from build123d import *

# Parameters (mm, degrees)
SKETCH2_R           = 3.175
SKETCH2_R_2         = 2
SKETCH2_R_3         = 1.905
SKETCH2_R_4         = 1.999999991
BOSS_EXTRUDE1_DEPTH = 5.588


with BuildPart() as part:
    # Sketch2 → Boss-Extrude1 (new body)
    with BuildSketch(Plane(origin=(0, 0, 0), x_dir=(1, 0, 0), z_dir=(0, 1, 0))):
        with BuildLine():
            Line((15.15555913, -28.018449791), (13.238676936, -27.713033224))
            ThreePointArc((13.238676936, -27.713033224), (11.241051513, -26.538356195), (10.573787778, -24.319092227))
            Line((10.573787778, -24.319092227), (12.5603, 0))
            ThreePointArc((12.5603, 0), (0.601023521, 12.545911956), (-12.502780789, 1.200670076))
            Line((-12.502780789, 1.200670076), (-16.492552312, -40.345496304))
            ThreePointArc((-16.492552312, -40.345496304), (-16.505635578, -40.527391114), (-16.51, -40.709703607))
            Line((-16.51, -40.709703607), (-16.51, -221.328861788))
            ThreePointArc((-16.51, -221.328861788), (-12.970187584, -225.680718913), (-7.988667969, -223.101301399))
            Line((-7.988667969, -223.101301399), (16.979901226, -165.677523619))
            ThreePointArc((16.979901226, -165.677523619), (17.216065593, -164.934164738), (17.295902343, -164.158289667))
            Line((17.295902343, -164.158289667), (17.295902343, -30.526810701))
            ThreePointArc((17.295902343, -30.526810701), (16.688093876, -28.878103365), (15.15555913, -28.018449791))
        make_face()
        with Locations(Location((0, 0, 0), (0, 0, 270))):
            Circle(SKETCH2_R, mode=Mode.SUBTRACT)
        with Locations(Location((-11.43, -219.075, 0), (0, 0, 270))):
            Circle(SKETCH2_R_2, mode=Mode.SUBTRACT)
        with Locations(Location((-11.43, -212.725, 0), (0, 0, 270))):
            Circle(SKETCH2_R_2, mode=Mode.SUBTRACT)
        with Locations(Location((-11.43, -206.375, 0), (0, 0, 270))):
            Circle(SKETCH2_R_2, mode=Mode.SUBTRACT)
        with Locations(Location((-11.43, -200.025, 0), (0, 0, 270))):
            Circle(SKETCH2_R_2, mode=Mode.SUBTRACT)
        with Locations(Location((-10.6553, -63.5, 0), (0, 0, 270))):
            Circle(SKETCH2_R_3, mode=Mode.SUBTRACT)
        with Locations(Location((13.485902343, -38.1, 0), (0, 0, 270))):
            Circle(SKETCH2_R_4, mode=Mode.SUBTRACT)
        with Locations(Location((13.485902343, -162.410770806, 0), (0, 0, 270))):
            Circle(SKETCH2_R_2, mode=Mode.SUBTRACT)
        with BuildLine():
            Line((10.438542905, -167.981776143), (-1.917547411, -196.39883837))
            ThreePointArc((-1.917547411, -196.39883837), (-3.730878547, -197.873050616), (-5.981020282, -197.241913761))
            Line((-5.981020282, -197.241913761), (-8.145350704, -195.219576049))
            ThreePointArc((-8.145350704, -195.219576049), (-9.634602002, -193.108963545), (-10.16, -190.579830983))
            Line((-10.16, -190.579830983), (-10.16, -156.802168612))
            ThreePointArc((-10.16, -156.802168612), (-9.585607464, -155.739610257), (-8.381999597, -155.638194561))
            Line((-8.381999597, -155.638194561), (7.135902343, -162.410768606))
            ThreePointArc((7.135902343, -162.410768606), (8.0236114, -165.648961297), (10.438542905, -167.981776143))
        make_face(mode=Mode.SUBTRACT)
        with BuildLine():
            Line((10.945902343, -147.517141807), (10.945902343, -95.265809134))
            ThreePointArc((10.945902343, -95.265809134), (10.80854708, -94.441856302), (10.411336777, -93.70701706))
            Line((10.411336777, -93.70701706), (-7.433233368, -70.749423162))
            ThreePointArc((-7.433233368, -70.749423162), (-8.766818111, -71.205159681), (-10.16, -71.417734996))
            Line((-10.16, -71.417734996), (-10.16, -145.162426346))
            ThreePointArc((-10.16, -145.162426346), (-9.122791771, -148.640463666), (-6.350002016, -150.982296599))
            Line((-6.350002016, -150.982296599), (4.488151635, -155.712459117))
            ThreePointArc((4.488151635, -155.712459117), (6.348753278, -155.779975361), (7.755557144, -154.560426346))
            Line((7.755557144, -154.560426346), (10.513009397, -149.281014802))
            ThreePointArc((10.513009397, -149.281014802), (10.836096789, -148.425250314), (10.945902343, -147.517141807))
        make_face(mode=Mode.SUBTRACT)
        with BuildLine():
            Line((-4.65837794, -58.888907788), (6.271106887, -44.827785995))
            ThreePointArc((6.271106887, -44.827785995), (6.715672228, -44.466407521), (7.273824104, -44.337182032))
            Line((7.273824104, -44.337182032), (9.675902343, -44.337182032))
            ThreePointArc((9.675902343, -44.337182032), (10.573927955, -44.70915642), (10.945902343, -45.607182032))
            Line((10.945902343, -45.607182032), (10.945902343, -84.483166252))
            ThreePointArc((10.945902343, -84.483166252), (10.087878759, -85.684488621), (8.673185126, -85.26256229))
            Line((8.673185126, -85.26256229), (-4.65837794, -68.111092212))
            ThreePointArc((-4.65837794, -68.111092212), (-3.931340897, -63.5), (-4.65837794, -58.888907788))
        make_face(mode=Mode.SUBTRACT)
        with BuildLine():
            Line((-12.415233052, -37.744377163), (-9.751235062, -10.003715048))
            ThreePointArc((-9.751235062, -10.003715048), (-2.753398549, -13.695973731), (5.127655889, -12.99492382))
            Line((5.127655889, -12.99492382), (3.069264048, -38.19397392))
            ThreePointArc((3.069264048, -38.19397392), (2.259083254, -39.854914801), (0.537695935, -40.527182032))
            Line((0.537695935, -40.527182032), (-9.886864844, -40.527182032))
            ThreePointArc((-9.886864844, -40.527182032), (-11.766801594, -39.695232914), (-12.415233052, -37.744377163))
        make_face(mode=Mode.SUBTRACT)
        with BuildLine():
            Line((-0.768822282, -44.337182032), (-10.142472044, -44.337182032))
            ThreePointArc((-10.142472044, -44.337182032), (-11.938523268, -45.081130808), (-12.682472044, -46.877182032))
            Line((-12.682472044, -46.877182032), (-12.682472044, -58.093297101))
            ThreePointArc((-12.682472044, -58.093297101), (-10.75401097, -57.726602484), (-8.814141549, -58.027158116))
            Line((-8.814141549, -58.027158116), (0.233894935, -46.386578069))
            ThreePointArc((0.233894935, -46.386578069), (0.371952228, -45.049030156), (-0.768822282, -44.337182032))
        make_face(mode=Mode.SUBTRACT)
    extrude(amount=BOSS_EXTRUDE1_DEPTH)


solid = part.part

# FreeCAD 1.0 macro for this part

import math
import FreeCAD as App
import Part
import Sketcher
from FreeCAD import Vector
Q = App.Units.Quantity

doc = App.newDocument("Part")
params = doc.addObject("Spreadsheet::Sheet", "Params")
for row, (alias, value) in enumerate([
    ("sketch1_radius", "0.1 in"),
    ("sketch1_radius2", "0.1 in"),
    ("sketch1_radius3", "0.1 in"),
    ("sketch1_radius4", "0.1 in"),
    ("sketch1_radius5", "0.1 in"),
    ("pad1_length", "0.22 in"),
], start=1):
    params.set(f"A{row}", alias)
    params.set(f"B{row}", "=" + value)
    params.setAlias(f"B{row}", alias)

body = doc.addObject("PartDesign::Body", "Body")

# Sketch on XZ plane
sketch1 = body.newObject("Sketcher::SketchObject", "Sketch")
sketch1.AttachmentSupport = (doc.getObject("XZ_Plane"), [""])
sketch1.MapMode = "FlatFace"
sketch1.addGeometry([
    Part.LineSegment(Vector(15.155559, 28.01845, 0), Vector(13.238677, 27.713033, 0)),  # 0
    Part.ArcOfCircle(Part.Circle(Vector(13.738248, 24.577582, 0), Vector(0, 0, 1), 3.175), math.radians(99.052835), math.radians(184.669855)),  # 1
    Part.LineSegment(Vector(10.573788, 24.319092, 0), Vector(12.5603, 0, 0)),  # 2
    Part.ArcOfCircle(Part.Circle(Vector(0, 0, 0), Vector(0, 0, 1), 12.5603), math.radians(-174.514579), math.radians(0)),  # 3
    Part.LineSegment(Vector(-12.502781, -1.20067, 0), Vector(-16.492552, 40.345496, 0)),  # 4
    Part.ArcOfCircle(Part.Circle(Vector(-12.7, 40.709704, 0), Vector(0, 0, 1), 3.81), math.radians(-180), math.radians(-174.514579)),  # 5
    Part.LineSegment(Vector(-16.51, 40.709704, 0), Vector(-16.51, 221.328862, 0)),  # 6
    Part.ArcOfCircle(Part.Circle(Vector(-12.065, 221.328862, 0), Vector(0, 0, 1), 4.445), math.radians(23.5), math.radians(180)),  # 7
    Part.LineSegment(Vector(-7.988668, 223.101301, 0), Vector(16.979901, 165.677524, 0)),  # 8
    Part.ArcOfCircle(Part.Circle(Vector(13.485902, 164.15829, 0), Vector(0, 0, 1), 3.81), math.radians(0), math.radians(23.5)),  # 9
    Part.LineSegment(Vector(17.295902, 164.15829, 0), Vector(17.295902, 30.526811, 0)),  # 10
    Part.ArcOfCircle(Part.Circle(Vector(14.755902, 30.526811, 0), Vector(0, 0, 1), 2.54), math.radians(-80.947165), math.radians(0)),  # 11
    Part.Circle(Vector(-11.43, 219.075, 0), Vector(0, 0, 1), 2),  # 12
    Part.Circle(Vector(-11.43, 212.725, 0), Vector(0, 0, 1), 2),  # 13
    Part.Circle(Vector(-11.43, 206.375, 0), Vector(0, 0, 1), 2),  # 14
    Part.Circle(Vector(-11.43, 200.025, 0), Vector(0, 0, 1), 2),  # 15
    Part.ArcOfCircle(Part.Circle(Vector(13.485902, 162.410771, 0), Vector(0, 0, 1), 6.35), math.radians(118.678814), math.radians(180.00002)),  # 16
    Part.LineSegment(Vector(10.438543, 167.981776, 0), Vector(-1.917547, 196.398838, 0)),  # 17
    Part.ArcOfCircle(Part.Circle(Vector(-4.24688, 195.386016, 0), Vector(0, 0, 1), 2.54), math.radians(23.5), math.radians(133.057533)),  # 18
    Part.LineSegment(Vector(-5.98102, 197.241914, 0), Vector(-8.145351, 195.219576, 0)),  # 19
    Part.ArcOfCircle(Part.Circle(Vector(-3.81, 190.579831, 0), Vector(0, 0, 1), 6.35), math.radians(133.057533), math.radians(180)),  # 20
    Part.LineSegment(Vector(-10.16, 190.579831, 0), Vector(-10.16, 156.802169, 0)),  # 21
    Part.ArcOfCircle(Part.Circle(Vector(-8.89, 156.802169, 0), Vector(0, 0, 1), 1.27), math.radians(180), math.radians(293.578198)),  # 22
    Part.LineSegment(Vector(-8.382, 155.638195, 0), Vector(7.135902, 162.410769, 0)),  # 23
    Part.LineSegment(Vector(10.945902, 95.265809, 0), Vector(10.945902, 147.517142, 0)),  # 24
    Part.ArcOfCircle(Part.Circle(Vector(7.135902, 147.517142, 0), Vector(0, 0, 1), 3.81), math.radians(0), math.radians(27.578198)),  # 25
    Part.LineSegment(Vector(10.513009, 149.281015, 0), Vector(7.755557, 154.560426, 0)),  # 26
    Part.ArcOfCircle(Part.Circle(Vector(5.504152, 153.384511, 0), Vector(0, 0, 1), 2.54), math.radians(27.578198), math.radians(113.578198)),  # 27
    Part.LineSegment(Vector(4.488152, 155.712459, 0), Vector(-6.350002, 150.982297, 0)),  # 28
    Part.ArcOfCircle(Part.Circle(Vector(-3.81, 145.162426, 0), Vector(0, 0, 1), 6.35), math.radians(113.578198), math.radians(180)),  # 29
    Part.LineSegment(Vector(-10.16, 145.162426, 0), Vector(-10.16, 71.417735, 0)),  # 30
    Part.ArcOfCircle(Part.Circle(Vector(-10.6553, 63.5, 0), Vector(0, 0, 1), 7.933212), math.radians(66.036846), math.radians(86.420483)),  # 31
    Part.LineSegment(Vector(-7.433233, 70.749423, 0), Vector(10.411337, 93.707017, 0)),  # 32
    Part.ArcOfCircle(Part.Circle(Vector(8.405902, 95.265809, 0), Vector(0, 0, 1), 2.54), math.radians(-37.857351), math.radians(0)),  # 33
    Part.Circle(Vector(13.485902, 162.410771, 0), Vector(0, 0, 1), 2),  # 34
    Part.Circle(Vector(-10.6553, 63.5, 0), Vector(0, 0, 1), 1.905),  # 35
    Part.LineSegment(Vector(-10.142472, 44.337182, 0), Vector(-0.768822, 44.337182, 0)),  # 36
    Part.ArcOfCircle(Part.Circle(Vector(-0.768822, 45.607182, 0), Vector(0, 0, 1), 1.27), math.radians(-90), math.radians(37.857351)),  # 37
    Part.LineSegment(Vector(0.233895, 46.386578, 0), Vector(-8.814142, 58.027158, 0)),  # 38
    Part.ArcOfCircle(Part.Circle(Vector(-10.6553, 63.5, 0), Vector(0, 0, 1), 5.774241), math.radians(-110.552872), math.radians(-71.406172)),  # 39
    Part.LineSegment(Vector(-12.682472, 58.093297, 0), Vector(-12.682472, 46.877182, 0)),  # 40
    Part.ArcOfCircle(Part.Circle(Vector(-10.142472, 46.877182, 0), Vector(0, 0, 1), 2.54), math.radians(-180), math.radians(-90)),  # 41
    Part.ArcOfCircle(Part.Circle(Vector(-9.886865, 37.987182, 0), Vector(0, 0, 1), 2.54), math.radians(90), math.radians(185.485421)),  # 42
    Part.LineSegment(Vector(-12.415233, 37.744377, 0), Vector(-9.751235, 10.003715, 0)),  # 43
    Part.ArcOfCircle(Part.Circle(Vector(0, 0, 0), Vector(0, 0, 1), 13.97), math.radians(68.466346), math.radians(134.267766)),  # 44
    Part.LineSegment(Vector(5.127656, 12.994924, 0), Vector(3.069264, 38.193974, 0)),  # 45
    Part.ArcOfCircle(Part.Circle(Vector(0.537696, 37.987182, 0), Vector(0, 0, 1), 2.54), math.radians(4.669855), math.radians(90)),  # 46
    Part.LineSegment(Vector(0.537696, 40.527182, 0), Vector(-9.886865, 40.527182, 0)),  # 47
    Part.Circle(Vector(0, 0, 0), Vector(0, 0, 1), 3.175),  # 48
    Part.ArcOfCircle(Part.Circle(Vector(-18.917341, 63.5, 0), Vector(0, 0, 1), 14.986), math.radians(-17.920275), math.radians(17.920275)),  # 49
    Part.LineSegment(Vector(-4.658378, 58.888908, 0), Vector(6.271107, 44.827786, 0)),  # 50
    Part.ArcOfCircle(Part.Circle(Vector(7.273824, 45.607182, 0), Vector(0, 0, 1), 1.27), math.radians(-142.142649), math.radians(-90)),  # 51
    Part.LineSegment(Vector(7.273824, 44.337182, 0), Vector(9.675902, 44.337182, 0)),  # 52
    Part.ArcOfCircle(Part.Circle(Vector(9.675902, 45.607182, 0), Vector(0, 0, 1), 1.27), math.radians(-90), math.radians(0)),  # 53
    Part.LineSegment(Vector(10.945902, 45.607182, 0), Vector(10.945902, 84.483166, 0)),  # 54
    Part.ArcOfCircle(Part.Circle(Vector(9.675902, 84.483166, 0), Vector(0, 0, 1), 1.27), math.radians(0), math.radians(142.142649)),  # 55
    Part.LineSegment(Vector(8.673185, 85.262562, 0), Vector(-4.658378, 68.111092, 0)),  # 56
    Part.Circle(Vector(13.485902, 38.1, 0), Vector(0, 0, 1), 2),  # 57
], False)
sketch1.addConstraint([
    Sketcher.Constraint("Coincident", 0, 2, 1, 1),
    Sketcher.Constraint("Coincident", 1, 2, 2, 1),
    Sketcher.Constraint("Coincident", 2, 2, 3, 2),
    Sketcher.Constraint("Coincident", 3, 1, 4, 1),
    Sketcher.Constraint("Coincident", 4, 2, 5, 2),
    Sketcher.Constraint("Coincident", 5, 1, 6, 1),
    Sketcher.Constraint("Coincident", 6, 2, 7, 2),
    Sketcher.Constraint("Coincident", 7, 1, 8, 1),
    Sketcher.Constraint("Coincident", 8, 2, 9, 2),
    Sketcher.Constraint("Coincident", 9, 1, 10, 1),
    Sketcher.Constraint("Coincident", 10, 2, 11, 2),
    Sketcher.Constraint("Coincident", 11, 1, 0, 1),
    Sketcher.Constraint("Coincident", 16, 1, 17, 1),
    Sketcher.Constraint("Coincident", 17, 2, 18, 1),
    Sketcher.Constraint("Coincident", 18, 2, 19, 1),
    Sketcher.Constraint("Coincident", 19, 2, 20, 1),
    Sketcher.Constraint("Coincident", 20, 2, 21, 1),
    Sketcher.Constraint("Coincident", 21, 2, 22, 1),
    Sketcher.Constraint("Coincident", 22, 2, 23, 1),
    Sketcher.Constraint("Coincident", 23, 2, 16, 2),
    Sketcher.Constraint("Coincident", 24, 2, 25, 1),
    Sketcher.Constraint("Coincident", 25, 2, 26, 1),
    Sketcher.Constraint("Coincident", 26, 2, 27, 1),
    Sketcher.Constraint("Coincident", 27, 2, 28, 1),
    Sketcher.Constraint("Coincident", 28, 2, 29, 1),
    Sketcher.Constraint("Coincident", 29, 2, 30, 1),
    Sketcher.Constraint("Coincident", 30, 2, 31, 2),
    Sketcher.Constraint("Coincident", 31, 1, 32, 1),
    Sketcher.Constraint("Coincident", 32, 2, 33, 1),
    Sketcher.Constraint("Coincident", 33, 2, 24, 1),
    Sketcher.Constraint("Coincident", 36, 2, 37, 1),
    Sketcher.Constraint("Coincident", 37, 2, 38, 1),
    Sketcher.Constraint("Coincident", 38, 2, 39, 2),
    Sketcher.Constraint("Coincident", 39, 1, 40, 1),
    Sketcher.Constraint("Coincident", 40, 2, 41, 1),
    Sketcher.Constraint("Coincident", 41, 2, 36, 1),
    Sketcher.Constraint("Coincident", 42, 2, 43, 1),
    Sketcher.Constraint("Coincident", 43, 2, 44, 2),
    Sketcher.Constraint("Coincident", 44, 1, 45, 1),
    Sketcher.Constraint("Coincident", 45, 2, 46, 1),
    Sketcher.Constraint("Coincident", 46, 2, 47, 1),
    Sketcher.Constraint("Coincident", 47, 2, 42, 1),
    Sketcher.Constraint("Coincident", 49, 1, 50, 1),
    Sketcher.Constraint("Coincident", 50, 2, 51, 1),
    Sketcher.Constraint("Coincident", 51, 2, 52, 1),
    Sketcher.Constraint("Coincident", 52, 2, 53, 1),
    Sketcher.Constraint("Coincident", 53, 2, 54, 1),
    Sketcher.Constraint("Coincident", 54, 2, 55, 1),
    Sketcher.Constraint("Coincident", 55, 2, 56, 1),
    Sketcher.Constraint("Coincident", 56, 2, 49, 2),
    Sketcher.Constraint("Vertical", 6),
    Sketcher.Constraint("Vertical", 10),
    Sketcher.Constraint("Vertical", 21),
    Sketcher.Constraint("Vertical", 24),
    Sketcher.Constraint("Vertical", 30),
    Sketcher.Constraint("Horizontal", 36),
    Sketcher.Constraint("Vertical", 40),
    Sketcher.Constraint("Horizontal", 47),
    Sketcher.Constraint("Horizontal", 52),
    Sketcher.Constraint("Vertical", 54),
    Sketcher.Constraint("Coincident", 3, 3, -1, 1),
    Sketcher.Constraint("Coincident", 44, 3, -1, 1),
    Sketcher.Constraint("Coincident", 48, 3, -1, 1),
    Sketcher.Constraint("Coincident", 34, 3, 16, 3),
    Sketcher.Constraint("Coincident", 35, 3, 31, 3),
    Sketcher.Constraint("Coincident", 39, 3, 31, 3),
    Sketcher.Constraint("PointOnObject", 2, 2, -1),
    Sketcher.Constraint("Radius", 11, Q("0.1 in")),
    Sketcher.Constraint("Radius", 18, Q("0.1 in")),
    Sketcher.Constraint("Radius", 27, Q("0.1 in")),
    Sketcher.Constraint("Radius", 33, Q("0.1 in")),
    Sketcher.Constraint("Radius", 41, Q("0.1 in")),
    Sketcher.Constraint("Radius", 42, Q("0.1 in")),
    Sketcher.Constraint("Radius", 46, Q("0.1 in")),
    Sketcher.Constraint("Diameter", 35, Q("0.15 in")),
    Sketcher.Constraint("Diameter", 48, Q("0.25 in")),
    Sketcher.Constraint("Radius", 5, Q("0.15 in")),
    Sketcher.Constraint("Radius", 9, Q("0.15 in")),
    Sketcher.Constraint("Radius", 16, Q("0.25 in")),
    Sketcher.Constraint("Radius", 20, Q("0.25 in")),
    Sketcher.Constraint("Radius", 22, Q("0.05 in")),
    Sketcher.Constraint("Radius", 25, Q("0.15 in")),
    Sketcher.Constraint("Radius", 29, Q("0.25 in")),
    Sketcher.Constraint("Radius", 37, Q("0.05 in")),
    Sketcher.Constraint("Radius", 44, Q("0.55 in")),
    Sketcher.Constraint("Radius", 49, Q("0.59 in")),
    Sketcher.Constraint("Radius", 51, Q("0.05 in")),
    Sketcher.Constraint("Radius", 53, Q("0.05 in")),
    Sketcher.Constraint("Radius", 55, Q("0.05 in")),
    Sketcher.Constraint("Radius", 1, Q("0.125 in")),
    Sketcher.Constraint("Radius", 7, Q("0.175 in")),
    Sketcher.Constraint("DistanceX", 5, 3, -1, 1, Q("0.5 in")),
    Sketcher.Constraint("DistanceY", -1, 1, 31, 3, Q("2.5 in")),
    Sketcher.Constraint("DistanceY", -1, 1, 49, 3, Q("2.5 in")),
    Sketcher.Constraint("DistanceY", -1, 1, 57, 3, Q("1.5 in")),
    Sketcher.Constraint("DistanceX", 20, 2, -1, 1, Q("0.4 in")),
    Sketcher.Constraint("DistanceX", 29, 2, -1, 1, Q("0.4 in")),
    Sketcher.Constraint("Radius", 3, Q("0.4945 in")),
    Sketcher.Constraint("Diameter", 12, 4.0),
    Sketcher.Constraint("Diameter", 13, 4.0),
    Sketcher.Constraint("Diameter", 14, 4.0),
    Sketcher.Constraint("Diameter", 15, 4.0),
    Sketcher.Constraint("Diameter", 34, 4.0),
    Sketcher.Constraint("Diameter", 57, 4.0),
    Sketcher.Constraint("DistanceX", 12, 3, -1, 1, Q("0.45 in")),
    Sketcher.Constraint("DistanceX", 13, 3, -1, 1, Q("0.45 in")),
    Sketcher.Constraint("DistanceX", 14, 3, -1, 1, Q("0.45 in")),
    Sketcher.Constraint("DistanceX", 15, 3, -1, 1, Q("0.45 in")),
    Sketcher.Constraint("DistanceX", 22, 2, -1, 1, Q("0.33 in")),
    Sketcher.Constraint("DistanceX", 28, 2, -1, 1, Q("0.2500001 in")),
    Sketcher.Constraint("DistanceY", -1, 1, 12, 3, Q("8.625 in")),
    Sketcher.Constraint("DistanceY", -1, 1, 13, 3, Q("8.375 in")),
    Sketcher.Constraint("DistanceY", -1, 1, 14, 3, Q("8.125 in")),
    Sketcher.Constraint("DistanceY", -1, 1, 15, 3, Q("7.875 in")),
    Sketcher.Constraint("Radius", 31, 7.933212),
    Sketcher.Constraint("Radius", 39, 5.774241),
    Sketcher.Constraint("DistanceX", 18, 3, -1, 1, Q("0.1672 in")),
    Sketcher.Constraint("DistanceX", 31, 3, -1, 1, Q("0.4195 in")),
    Sketcher.Constraint("DistanceX", -1, 1, 8, 2, Q("0.6685 in")),
    Sketcher.Constraint("Distance", 4, 41.7373),
    Sketcher.Constraint("DistanceX", 36, 1, 36, 2, 9.37365),
    Sketcher.Constraint("DistanceX", 47, 2, 47, 1, 10.424561),
    Sketcher.Constraint("DistanceX", 52, 1, 52, 2, 2.402078),
    Sketcher.Constraint("DistanceY", 6, 1, 6, 2, 180.619158),
    Sketcher.Constraint("DistanceY", 10, 2, 10, 1, 133.631479),
    Sketcher.Constraint("DistanceY", 30, 2, 30, 1, 73.744691),
    Sketcher.Constraint("DistanceY", -1, 1, 7, 1, 223.101301),
    Sketcher.Constraint("Distance", 0, 1.941061),
    Sketcher.Constraint("Distance", 2, 24.400092),
    Sketcher.Constraint("Distance", 23, 16.931422),
    Sketcher.Constraint("Distance", 26, 5.956151),
    Sketcher.Constraint("Distance", 45, 25.28298),
    Sketcher.Constraint("Distance", 56, 21.72334),
    Sketcher.Constraint("DistanceY", 21, 2, 21, 1, 33.777662),
    Sketcher.Constraint("DistanceY", 24, 1, 24, 2, 52.251333),
    Sketcher.Constraint("DistanceY", 40, 2, 40, 1, 11.216115),
    Sketcher.Constraint("DistanceY", 54, 1, 54, 2, 38.875984),
    Sketcher.Constraint("DistanceY", -1, 1, 7, 3, 221.328862),
    Sketcher.Constraint("DistanceY", -1, 1, 9, 3, 164.15829),
    Sketcher.Constraint("DistanceY", -1, 1, 11, 3, 30.526811),
    Sketcher.Constraint("DistanceY", -1, 1, 16, 3, 162.410771),
    Sketcher.Constraint("DistanceY", -1, 1, 20, 3, 190.579831),
    Sketcher.Constraint("DistanceY", -1, 1, 22, 3, 156.802169),
    Sketcher.Constraint("DistanceY", -1, 1, 25, 3, 147.517142),
    Sketcher.Constraint("DistanceY", -1, 1, 27, 3, 153.384511),
    Sketcher.Constraint("DistanceY", -1, 1, 33, 3, 95.265809),
    Sketcher.Constraint("DistanceX", 49, 3, -1, 1, 18.917341),
    Sketcher.Constraint("DistanceX", 3, 1, -1, 1, 12.502781),
    Sketcher.Constraint("DistanceY", -1, 1, 6, 2, 221.328862),
    Sketcher.Constraint("DistanceY", -1, 1, 9, 1, 164.15829),
    Sketcher.Constraint("DistanceX", -1, 1, 11, 1, 15.155559),
    Sketcher.Constraint("DistanceY", -1, 1, 11, 1, 28.01845),
    Sketcher.Constraint("DistanceY", -1, 1, 17, 2, 196.398838),
    Sketcher.Constraint("DistanceX", 18, 2, -1, 1, 5.98102),
    Sketcher.Constraint("DistanceX", 19, 2, -1, 1, 8.145351),
    Sketcher.Constraint("DistanceY", -1, 1, 20, 2, 190.579831),
    Sketcher.Constraint("DistanceY", -1, 1, 23, 2, 162.410769),
    Sketcher.Constraint("DistanceY", -1, 1, 24, 2, 147.517142),
    Sketcher.Constraint("DistanceX", -1, 1, 25, 2, 10.513009),
    Sketcher.Constraint("DistanceX", -1, 1, 27, 2, 4.488152),
    Sketcher.Constraint("DistanceY", -1, 1, 27, 2, 155.712459),
    Sketcher.Constraint("DistanceY", -1, 1, 37, 2, 46.386578),
    Sketcher.Constraint("DistanceX", 38, 2, -1, 1, 8.814142),
    Sketcher.Constraint("Distance", 17, 30.987133),
    Sketcher.Constraint("Distance", 19, 2.962124),
    Sketcher.Constraint("Distance", 28, 11.825397),
    Sketcher.Constraint("Distance", 32, 29.077135),
    Sketcher.Constraint("Distance", 38, 14.743475),
    Sketcher.Constraint("Distance", 43, 27.868283),
    Sketcher.Constraint("Distance", 50, 17.809233),
    Sketcher.Constraint("DistanceX", -1, 1, 1, 3, 13.738248),
    Sketcher.Constraint("DistanceY", -1, 1, 1, 3, 24.577582),
    Sketcher.Constraint("DistanceY", -1, 1, 5, 3, 40.709704),
    Sketcher.Constraint("DistanceX", -1, 1, 25, 3, 7.135902),
    Sketcher.Constraint("DistanceX", 37, 3, -1, 1, 0.768822),
    Sketcher.Constraint("DistanceX", 41, 3, -1, 1, 10.142472),
    Sketcher.Constraint("DistanceX", 42, 3, -1, 1, 9.886865),
    Sketcher.Constraint("DistanceY", -1, 1, 42, 3, 37.987182),
    Sketcher.Constraint("DistanceX", -1, 1, 46, 3, 0.537696),
    Sketcher.Constraint("DistanceX", -1, 1, 51, 3, 7.273824),
    Sketcher.Constraint("DistanceY", -1, 1, 51, 3, 45.607182),
    Sketcher.Constraint("DistanceX", -1, 1, 53, 3, 9.675902),
    Sketcher.Constraint("DistanceY", -1, 1, 55, 3, 84.483166),
    Sketcher.Constraint("DistanceX", -1, 1, 57, 3, 13.485902),
    Sketcher.Constraint("DistanceX", 31, 1, -1, 1, 7.433233),
    Sketcher.Constraint("DistanceX", 36, 2, -1, 1, 0.768822),
    Sketcher.Constraint("DistanceX", 42, 2, -1, 1, 12.415233),
    Sketcher.Constraint("DistanceX", -1, 1, 44, 1, 5.127656),
    Sketcher.Constraint("DistanceX", -1, 1, 46, 2, 0.537696),
    Sketcher.Constraint("DistanceX", 49, 1, -1, 1, 4.658378),
    Sketcher.Constraint("DistanceX", -1, 1, 51, 2, 7.273824),
    Sketcher.Constraint("DistanceY", -1, 1, 53, 2, 45.607182),
    Sketcher.Constraint("DistanceX", -1, 1, 55, 2, 8.673185),
])
sketch1.setExpression("Constraints[67]", "Params.sketch1_radius")
sketch1.setExpression("Constraints[68]", "Params.sketch1_radius2")
sketch1.setExpression("Constraints[69]", "Params.sketch1_radius3")
sketch1.setExpression("Constraints[70]", "Params.sketch1_radius4")
sketch1.setExpression("Constraints[71]", "Params.sketch1_radius5")
pad1 = body.newObject("PartDesign::Pad", "Pad")
pad1.Profile = sketch1
pad1.setExpression("Length", "Params.pad1_length")
pad1.Reversed = True

doc.recompute()
